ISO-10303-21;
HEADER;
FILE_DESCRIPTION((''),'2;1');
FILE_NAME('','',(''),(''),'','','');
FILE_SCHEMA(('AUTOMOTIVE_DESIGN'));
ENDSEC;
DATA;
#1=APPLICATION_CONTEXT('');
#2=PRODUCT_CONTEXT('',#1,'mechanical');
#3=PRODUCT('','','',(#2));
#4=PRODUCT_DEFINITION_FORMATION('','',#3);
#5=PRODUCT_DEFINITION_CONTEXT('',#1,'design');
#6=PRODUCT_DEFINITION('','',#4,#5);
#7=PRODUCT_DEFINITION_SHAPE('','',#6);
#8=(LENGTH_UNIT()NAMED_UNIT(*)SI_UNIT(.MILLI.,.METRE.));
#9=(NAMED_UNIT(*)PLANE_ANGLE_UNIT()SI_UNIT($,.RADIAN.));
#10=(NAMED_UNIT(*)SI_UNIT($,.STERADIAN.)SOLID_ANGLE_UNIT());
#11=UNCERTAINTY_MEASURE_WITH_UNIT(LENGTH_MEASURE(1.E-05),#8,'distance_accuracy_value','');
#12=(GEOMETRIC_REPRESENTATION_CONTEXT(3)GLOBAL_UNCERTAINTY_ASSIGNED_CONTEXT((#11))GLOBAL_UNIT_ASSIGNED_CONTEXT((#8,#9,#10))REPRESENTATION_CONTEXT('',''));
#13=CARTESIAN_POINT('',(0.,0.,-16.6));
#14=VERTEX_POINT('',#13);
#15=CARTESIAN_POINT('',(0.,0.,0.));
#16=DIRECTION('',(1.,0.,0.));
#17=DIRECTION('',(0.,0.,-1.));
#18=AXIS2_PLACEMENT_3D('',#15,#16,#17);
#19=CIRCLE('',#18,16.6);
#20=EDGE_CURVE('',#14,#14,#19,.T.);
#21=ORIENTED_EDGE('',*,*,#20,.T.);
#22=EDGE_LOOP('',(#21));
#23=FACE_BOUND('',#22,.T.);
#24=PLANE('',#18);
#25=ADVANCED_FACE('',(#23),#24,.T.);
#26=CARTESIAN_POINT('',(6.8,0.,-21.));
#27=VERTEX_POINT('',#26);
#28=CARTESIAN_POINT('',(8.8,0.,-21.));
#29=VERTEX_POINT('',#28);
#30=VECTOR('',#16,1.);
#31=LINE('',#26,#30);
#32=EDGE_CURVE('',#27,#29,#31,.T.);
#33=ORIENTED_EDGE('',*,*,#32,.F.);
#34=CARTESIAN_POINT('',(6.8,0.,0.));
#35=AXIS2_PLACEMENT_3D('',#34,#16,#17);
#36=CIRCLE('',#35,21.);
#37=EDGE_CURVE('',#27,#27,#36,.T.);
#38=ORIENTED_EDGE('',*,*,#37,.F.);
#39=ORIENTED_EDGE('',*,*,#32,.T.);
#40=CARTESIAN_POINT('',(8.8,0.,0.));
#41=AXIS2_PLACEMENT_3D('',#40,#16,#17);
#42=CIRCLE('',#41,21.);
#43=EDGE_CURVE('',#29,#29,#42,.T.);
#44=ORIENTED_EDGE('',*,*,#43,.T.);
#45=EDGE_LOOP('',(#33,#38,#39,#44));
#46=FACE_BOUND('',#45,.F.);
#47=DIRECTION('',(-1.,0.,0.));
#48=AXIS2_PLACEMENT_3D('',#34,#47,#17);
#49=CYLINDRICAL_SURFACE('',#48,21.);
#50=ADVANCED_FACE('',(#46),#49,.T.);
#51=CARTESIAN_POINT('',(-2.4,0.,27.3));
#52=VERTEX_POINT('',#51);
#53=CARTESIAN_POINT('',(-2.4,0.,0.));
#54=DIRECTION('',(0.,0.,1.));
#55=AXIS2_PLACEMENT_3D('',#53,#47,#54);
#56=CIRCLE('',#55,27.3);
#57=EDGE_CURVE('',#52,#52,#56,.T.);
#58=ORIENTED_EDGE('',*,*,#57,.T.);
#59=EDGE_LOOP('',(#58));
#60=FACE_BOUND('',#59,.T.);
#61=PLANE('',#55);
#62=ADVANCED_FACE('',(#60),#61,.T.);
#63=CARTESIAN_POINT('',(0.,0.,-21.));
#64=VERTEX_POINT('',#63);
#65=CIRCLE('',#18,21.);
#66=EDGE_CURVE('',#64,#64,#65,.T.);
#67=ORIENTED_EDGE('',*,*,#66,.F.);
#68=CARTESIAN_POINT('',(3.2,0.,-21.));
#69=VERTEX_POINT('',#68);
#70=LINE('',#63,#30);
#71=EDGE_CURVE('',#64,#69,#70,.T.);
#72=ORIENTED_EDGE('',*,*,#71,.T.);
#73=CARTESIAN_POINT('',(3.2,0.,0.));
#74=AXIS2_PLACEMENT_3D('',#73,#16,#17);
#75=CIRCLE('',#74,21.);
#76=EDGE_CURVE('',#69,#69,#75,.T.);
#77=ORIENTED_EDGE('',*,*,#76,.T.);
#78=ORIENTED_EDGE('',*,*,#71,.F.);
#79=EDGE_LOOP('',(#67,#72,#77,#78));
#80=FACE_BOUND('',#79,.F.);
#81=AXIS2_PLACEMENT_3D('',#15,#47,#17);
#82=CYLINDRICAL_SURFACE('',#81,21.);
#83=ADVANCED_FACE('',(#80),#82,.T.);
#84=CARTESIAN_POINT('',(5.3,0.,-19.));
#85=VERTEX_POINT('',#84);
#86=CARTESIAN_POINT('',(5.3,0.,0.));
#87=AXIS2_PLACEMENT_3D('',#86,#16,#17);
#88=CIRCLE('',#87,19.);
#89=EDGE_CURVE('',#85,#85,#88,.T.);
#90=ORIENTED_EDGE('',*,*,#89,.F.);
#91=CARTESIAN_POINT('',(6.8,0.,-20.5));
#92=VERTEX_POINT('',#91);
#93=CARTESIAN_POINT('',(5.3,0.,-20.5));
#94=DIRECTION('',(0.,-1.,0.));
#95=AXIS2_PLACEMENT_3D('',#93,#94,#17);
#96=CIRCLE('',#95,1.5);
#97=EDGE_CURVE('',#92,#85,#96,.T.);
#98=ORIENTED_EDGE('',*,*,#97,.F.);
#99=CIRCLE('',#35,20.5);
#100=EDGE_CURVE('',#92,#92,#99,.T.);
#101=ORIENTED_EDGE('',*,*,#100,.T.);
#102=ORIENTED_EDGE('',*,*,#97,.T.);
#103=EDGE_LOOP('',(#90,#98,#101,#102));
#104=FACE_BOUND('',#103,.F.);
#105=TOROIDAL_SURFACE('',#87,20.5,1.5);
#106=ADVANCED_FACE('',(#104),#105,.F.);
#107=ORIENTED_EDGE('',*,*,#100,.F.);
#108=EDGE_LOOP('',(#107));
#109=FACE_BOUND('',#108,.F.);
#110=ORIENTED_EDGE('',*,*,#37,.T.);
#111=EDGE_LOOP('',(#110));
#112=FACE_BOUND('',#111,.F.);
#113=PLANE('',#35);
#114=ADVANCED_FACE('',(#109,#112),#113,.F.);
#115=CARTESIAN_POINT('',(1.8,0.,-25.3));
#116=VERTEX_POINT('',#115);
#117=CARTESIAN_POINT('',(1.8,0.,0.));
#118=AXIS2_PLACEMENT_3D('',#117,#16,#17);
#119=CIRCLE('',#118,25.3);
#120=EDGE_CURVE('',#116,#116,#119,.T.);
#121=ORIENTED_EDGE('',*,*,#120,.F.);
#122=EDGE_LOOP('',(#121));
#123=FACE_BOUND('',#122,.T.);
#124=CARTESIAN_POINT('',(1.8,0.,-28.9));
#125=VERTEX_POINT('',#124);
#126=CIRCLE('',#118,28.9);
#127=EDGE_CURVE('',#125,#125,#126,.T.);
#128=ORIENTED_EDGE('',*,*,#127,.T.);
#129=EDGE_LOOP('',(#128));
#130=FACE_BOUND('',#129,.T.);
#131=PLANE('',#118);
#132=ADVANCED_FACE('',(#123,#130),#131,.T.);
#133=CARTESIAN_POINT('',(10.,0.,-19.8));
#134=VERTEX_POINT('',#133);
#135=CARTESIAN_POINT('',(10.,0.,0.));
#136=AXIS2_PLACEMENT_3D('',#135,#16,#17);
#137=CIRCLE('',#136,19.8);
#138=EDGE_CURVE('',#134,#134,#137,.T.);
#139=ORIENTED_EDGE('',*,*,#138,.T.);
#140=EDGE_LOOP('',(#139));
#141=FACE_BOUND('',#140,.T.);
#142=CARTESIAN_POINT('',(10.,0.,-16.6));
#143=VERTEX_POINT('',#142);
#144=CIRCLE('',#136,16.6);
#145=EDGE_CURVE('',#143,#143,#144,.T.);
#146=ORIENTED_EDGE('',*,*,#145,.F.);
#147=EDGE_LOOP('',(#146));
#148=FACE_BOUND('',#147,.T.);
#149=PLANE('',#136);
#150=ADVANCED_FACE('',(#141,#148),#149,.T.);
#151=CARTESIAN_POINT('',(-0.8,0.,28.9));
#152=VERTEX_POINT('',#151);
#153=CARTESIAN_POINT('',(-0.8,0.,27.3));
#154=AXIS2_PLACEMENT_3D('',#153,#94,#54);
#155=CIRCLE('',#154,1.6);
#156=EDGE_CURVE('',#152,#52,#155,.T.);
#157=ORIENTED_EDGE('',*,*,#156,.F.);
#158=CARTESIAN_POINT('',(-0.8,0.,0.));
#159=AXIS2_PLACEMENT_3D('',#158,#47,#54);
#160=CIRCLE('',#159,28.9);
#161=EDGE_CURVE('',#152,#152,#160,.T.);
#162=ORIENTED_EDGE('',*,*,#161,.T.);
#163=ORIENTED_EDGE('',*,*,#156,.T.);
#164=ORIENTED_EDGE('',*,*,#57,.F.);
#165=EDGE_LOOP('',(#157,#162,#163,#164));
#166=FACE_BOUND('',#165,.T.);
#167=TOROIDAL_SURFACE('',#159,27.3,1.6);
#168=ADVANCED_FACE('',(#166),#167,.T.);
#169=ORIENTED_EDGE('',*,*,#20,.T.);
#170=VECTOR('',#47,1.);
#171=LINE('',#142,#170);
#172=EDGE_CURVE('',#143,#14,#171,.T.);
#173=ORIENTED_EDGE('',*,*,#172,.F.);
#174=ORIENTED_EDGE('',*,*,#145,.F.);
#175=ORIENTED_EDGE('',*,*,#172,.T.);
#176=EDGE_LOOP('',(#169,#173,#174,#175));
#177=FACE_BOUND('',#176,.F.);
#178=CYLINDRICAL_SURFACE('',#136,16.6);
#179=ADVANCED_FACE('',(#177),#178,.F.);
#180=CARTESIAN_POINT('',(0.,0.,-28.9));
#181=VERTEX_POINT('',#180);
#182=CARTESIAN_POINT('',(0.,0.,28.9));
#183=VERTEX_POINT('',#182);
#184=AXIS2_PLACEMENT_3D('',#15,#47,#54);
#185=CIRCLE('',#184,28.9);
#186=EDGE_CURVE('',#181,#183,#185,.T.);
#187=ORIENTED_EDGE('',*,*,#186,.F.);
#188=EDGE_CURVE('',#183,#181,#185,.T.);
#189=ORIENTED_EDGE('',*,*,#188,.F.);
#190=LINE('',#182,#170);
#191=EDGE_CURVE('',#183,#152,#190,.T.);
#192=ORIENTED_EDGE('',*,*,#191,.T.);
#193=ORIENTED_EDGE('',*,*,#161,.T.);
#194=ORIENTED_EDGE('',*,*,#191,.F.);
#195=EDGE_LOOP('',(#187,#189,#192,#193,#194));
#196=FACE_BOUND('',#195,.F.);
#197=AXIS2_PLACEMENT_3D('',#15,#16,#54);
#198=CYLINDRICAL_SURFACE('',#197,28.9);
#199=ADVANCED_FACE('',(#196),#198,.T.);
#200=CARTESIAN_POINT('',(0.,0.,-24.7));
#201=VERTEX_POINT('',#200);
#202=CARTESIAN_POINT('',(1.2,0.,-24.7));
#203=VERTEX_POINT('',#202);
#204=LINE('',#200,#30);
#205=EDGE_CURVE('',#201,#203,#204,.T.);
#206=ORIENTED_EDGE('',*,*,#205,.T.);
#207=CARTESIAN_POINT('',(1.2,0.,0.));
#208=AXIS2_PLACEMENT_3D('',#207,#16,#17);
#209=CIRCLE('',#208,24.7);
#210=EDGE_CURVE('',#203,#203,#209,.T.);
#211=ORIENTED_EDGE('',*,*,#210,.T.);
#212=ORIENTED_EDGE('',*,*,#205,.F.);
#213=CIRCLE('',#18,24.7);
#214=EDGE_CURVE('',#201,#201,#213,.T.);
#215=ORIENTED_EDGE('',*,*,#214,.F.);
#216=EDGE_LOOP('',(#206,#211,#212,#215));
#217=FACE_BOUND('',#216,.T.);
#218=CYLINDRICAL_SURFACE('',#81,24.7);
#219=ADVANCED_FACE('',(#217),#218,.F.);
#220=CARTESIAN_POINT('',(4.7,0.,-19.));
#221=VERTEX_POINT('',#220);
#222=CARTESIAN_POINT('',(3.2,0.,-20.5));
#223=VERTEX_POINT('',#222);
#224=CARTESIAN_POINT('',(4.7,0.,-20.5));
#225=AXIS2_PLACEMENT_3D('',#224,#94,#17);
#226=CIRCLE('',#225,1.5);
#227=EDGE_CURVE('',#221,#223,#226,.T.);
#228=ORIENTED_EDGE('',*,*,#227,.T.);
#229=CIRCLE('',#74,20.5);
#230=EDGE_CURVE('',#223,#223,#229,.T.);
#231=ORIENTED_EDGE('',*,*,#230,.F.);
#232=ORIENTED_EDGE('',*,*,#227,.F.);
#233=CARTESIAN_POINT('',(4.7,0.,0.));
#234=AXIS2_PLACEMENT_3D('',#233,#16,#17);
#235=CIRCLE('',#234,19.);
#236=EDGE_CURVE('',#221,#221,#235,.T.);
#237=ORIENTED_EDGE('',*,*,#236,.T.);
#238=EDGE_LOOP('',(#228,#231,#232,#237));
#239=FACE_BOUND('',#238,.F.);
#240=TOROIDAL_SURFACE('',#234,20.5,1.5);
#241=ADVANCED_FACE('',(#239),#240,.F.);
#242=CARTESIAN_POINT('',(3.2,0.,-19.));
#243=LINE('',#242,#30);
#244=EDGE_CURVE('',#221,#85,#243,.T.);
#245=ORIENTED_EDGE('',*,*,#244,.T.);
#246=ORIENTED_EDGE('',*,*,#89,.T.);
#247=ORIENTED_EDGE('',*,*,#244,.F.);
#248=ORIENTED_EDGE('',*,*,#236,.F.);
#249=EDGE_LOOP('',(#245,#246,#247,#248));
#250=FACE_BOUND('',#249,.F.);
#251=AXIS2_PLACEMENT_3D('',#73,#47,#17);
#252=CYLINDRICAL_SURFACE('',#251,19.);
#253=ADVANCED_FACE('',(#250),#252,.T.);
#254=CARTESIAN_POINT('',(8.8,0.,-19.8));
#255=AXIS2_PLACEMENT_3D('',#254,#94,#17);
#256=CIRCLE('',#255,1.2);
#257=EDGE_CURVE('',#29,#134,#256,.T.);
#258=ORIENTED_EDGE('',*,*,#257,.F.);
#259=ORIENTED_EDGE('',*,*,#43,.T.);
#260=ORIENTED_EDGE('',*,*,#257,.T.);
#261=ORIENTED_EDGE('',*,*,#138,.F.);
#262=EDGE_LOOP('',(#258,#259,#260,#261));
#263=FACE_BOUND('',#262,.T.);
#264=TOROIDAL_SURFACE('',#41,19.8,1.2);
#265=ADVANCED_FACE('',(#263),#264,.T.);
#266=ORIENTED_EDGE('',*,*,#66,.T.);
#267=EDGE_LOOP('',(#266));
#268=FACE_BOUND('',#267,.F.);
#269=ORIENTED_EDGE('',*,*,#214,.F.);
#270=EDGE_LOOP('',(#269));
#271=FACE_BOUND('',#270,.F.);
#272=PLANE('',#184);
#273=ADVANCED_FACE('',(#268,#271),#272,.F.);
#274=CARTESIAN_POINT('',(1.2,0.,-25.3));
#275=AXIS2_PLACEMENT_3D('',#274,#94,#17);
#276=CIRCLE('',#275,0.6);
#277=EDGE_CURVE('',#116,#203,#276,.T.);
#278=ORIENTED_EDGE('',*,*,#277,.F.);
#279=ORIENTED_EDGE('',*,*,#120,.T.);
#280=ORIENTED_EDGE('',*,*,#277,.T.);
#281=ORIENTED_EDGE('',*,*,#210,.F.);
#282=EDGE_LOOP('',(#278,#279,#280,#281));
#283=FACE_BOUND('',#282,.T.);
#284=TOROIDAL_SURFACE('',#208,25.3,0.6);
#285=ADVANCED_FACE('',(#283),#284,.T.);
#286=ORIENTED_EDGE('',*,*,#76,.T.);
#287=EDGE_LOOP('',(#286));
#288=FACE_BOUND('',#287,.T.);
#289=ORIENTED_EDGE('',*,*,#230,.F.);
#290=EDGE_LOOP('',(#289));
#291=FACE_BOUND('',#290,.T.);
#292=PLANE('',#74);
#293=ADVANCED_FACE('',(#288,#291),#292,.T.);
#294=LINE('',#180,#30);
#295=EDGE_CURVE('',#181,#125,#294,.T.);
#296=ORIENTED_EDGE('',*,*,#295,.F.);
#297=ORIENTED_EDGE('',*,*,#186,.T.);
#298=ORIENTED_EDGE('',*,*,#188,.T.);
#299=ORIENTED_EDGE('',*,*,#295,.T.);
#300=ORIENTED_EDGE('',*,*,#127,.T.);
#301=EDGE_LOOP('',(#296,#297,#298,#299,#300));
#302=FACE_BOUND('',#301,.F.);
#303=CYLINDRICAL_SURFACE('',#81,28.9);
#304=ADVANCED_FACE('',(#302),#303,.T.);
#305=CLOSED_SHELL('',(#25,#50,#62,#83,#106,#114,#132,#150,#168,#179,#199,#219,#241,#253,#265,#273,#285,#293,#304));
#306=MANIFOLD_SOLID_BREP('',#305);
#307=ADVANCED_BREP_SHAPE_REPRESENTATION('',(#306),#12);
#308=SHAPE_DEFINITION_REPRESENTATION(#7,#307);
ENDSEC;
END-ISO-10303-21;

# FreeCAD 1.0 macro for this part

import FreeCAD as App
import Part
import Sketcher
from FreeCAD import Vector


def edges_at(feature, points):
    """Names of the edges that pass closest to the given points."""
    edges = feature.Shape.Edges
    near = lambda p: min(range(len(edges)), key=lambda i: edges[i].distToShape(Part.Vertex(*p))[0])
    return sorted({f"Edge{near(p) + 1}" for p in points})

doc = App.newDocument("Part")
body = doc.addObject("PartDesign::Body", "Body")

# Sketch on YZ plane
sketch1 = body.newObject("Sketcher::SketchObject", "Sketch")
sketch1.AttachmentSupport = (doc.getObject("YZ_Plane"), [""])
sketch1.MapMode = "FlatFace"
sketch1.addGeometry(Part.Circle(Vector(0, 0, 0), Vector(0, 0, 1), 21), False)
sketch1.addConstraint([
    Sketcher.Constraint("Coincident", 0, 3, -1, 1),
    Sketcher.Constraint("Diameter", 0, 42.0),
])
pad1 = body.newObject("PartDesign::Pad", "Pad")
pad1.Profile = sketch1
pad1.Length = 3.2

# Sketch on YZ plane
sketch2 = body.newObject("Sketcher::SketchObject", "Sketch001")
sketch2.AttachmentSupport = (doc.getObject("YZ_Plane"), [""])
sketch2.MapMode = "FlatFace"
sketch2.AttachmentOffset = App.Placement(Vector(0, 0, 3.2), App.Rotation())
sketch2.addGeometry(Part.Circle(Vector(0, 0, 0), Vector(0, 0, 1), 19), False)
sketch2.addConstraint([
    Sketcher.Constraint("Coincident", 0, 3, -1, 1),
    Sketcher.Constraint("Diameter", 0, 38.0),
])
pad2 = body.newObject("PartDesign::Pad", "Pad001")
pad2.Profile = sketch2
pad2.Length = 3.6

# Sketch on YZ plane
sketch3 = body.newObject("Sketcher::SketchObject", "Sketch002")
sketch3.AttachmentSupport = (doc.getObject("YZ_Plane"), [""])
sketch3.MapMode = "FlatFace"
sketch3.AttachmentOffset = App.Placement(Vector(0, 0, 6.8), App.Rotation())
sketch3.addGeometry(Part.Circle(Vector(0, 0, 0), Vector(0, 0, 1), 21), False)
sketch3.addConstraint([
    Sketcher.Constraint("Coincident", 0, 3, -1, 1),
    Sketcher.Constraint("Diameter", 0, 42.0),
])
pad3 = body.newObject("PartDesign::Pad", "Pad002")
pad3.Profile = sketch3
pad3.Length = 3.2
doc.recompute()

fillet = body.newObject("PartDesign::Fillet", "Fillet")
fillet.Base = (pad3, edges_at(pad3, [(3.2, 6.871, 17.714), (6.8, -6.871, 17.714)]))
fillet.Radius = 1.5

# Sketch on YZ plane
sketch4 = body.newObject("Sketcher::SketchObject", "Sketch003")
sketch4.AttachmentSupport = (doc.getObject("YZ_Plane"), [""])
sketch4.MapMode = "FlatFace"
sketch4.addGeometry(Part.Circle(Vector(0, 0, 0), Vector(0, 0, 1), 29), False)
sketch4.addConstraint([
    Sketcher.Constraint("Coincident", 0, 3, -1, 1),
    Sketcher.Constraint("Diameter", 0, 57.8),
])
pad4 = body.newObject("PartDesign::Pad", "Pad003")
pad4.Profile = sketch4
pad4.Length = 2.4
pad4.Reversed = True

# Sketch on YZ plane
sketch5 = body.newObject("Sketcher::SketchObject", "Sketch004")
sketch5.AttachmentSupport = (doc.getObject("YZ_Plane"), [""])
sketch5.MapMode = "FlatFace"
sketch5.addGeometry([
    Part.Circle(Vector(0, 0, 0), Vector(0, 0, 1), 29),
    Part.Circle(Vector(0, 0, 0), Vector(0, 0, 1), 25),
], False)
sketch5.addConstraint([
    Sketcher.Constraint("Coincident", 0, 3, -1, 1),
    Sketcher.Constraint("Coincident", 1, 3, -1, 1),
    Sketcher.Constraint("Diameter", 1, 49.4),
    Sketcher.Constraint("Diameter", 0, 57.8),
])
pad5 = body.newObject("PartDesign::Pad", "Pad004")
pad5.Profile = sketch5
pad5.Length = 1.8

# Sketch on YZ plane
sketch6 = body.newObject("Sketcher::SketchObject", "Sketch005")
sketch6.AttachmentSupport = (doc.getObject("YZ_Plane"), [""])
sketch6.MapMode = "FlatFace"
sketch6.AttachmentOffset = App.Placement(Vector(0, 0, 10), App.Rotation())
sketch6.addGeometry(Part.Circle(Vector(0, 0, 0), Vector(0, 0, 1), 17), False)
sketch6.addConstraint([
    Sketcher.Constraint("Coincident", 0, 3, -1, 1),
    Sketcher.Constraint("Diameter", 0, 33.2),
])
pocket1 = body.newObject("PartDesign::Pocket", "Pocket")
pocket1.Profile = sketch6
pocket1.Length = 10
doc.recompute()

fillet2 = body.newObject("PartDesign::Fillet", "Fillet001")
fillet2.Base = (pocket1, edges_at(pocket1, [(10, -7.594, 19.579)]))
fillet2.Radius = 1.2
doc.recompute()

fillet3 = body.newObject("PartDesign::Fillet", "Fillet002")
fillet3.Base = (fillet2, edges_at(fillet2, [(-2.4, -10.451, -26.944)]))
fillet3.Radius = 1.6
doc.recompute()

fillet4 = body.newObject("PartDesign::Fillet", "Fillet003")
fillet4.Base = (fillet3, edges_at(fillet3, [(1.8, 8.932, 23.029)]))
fillet4.Radius = 0.6

doc.recompute()
